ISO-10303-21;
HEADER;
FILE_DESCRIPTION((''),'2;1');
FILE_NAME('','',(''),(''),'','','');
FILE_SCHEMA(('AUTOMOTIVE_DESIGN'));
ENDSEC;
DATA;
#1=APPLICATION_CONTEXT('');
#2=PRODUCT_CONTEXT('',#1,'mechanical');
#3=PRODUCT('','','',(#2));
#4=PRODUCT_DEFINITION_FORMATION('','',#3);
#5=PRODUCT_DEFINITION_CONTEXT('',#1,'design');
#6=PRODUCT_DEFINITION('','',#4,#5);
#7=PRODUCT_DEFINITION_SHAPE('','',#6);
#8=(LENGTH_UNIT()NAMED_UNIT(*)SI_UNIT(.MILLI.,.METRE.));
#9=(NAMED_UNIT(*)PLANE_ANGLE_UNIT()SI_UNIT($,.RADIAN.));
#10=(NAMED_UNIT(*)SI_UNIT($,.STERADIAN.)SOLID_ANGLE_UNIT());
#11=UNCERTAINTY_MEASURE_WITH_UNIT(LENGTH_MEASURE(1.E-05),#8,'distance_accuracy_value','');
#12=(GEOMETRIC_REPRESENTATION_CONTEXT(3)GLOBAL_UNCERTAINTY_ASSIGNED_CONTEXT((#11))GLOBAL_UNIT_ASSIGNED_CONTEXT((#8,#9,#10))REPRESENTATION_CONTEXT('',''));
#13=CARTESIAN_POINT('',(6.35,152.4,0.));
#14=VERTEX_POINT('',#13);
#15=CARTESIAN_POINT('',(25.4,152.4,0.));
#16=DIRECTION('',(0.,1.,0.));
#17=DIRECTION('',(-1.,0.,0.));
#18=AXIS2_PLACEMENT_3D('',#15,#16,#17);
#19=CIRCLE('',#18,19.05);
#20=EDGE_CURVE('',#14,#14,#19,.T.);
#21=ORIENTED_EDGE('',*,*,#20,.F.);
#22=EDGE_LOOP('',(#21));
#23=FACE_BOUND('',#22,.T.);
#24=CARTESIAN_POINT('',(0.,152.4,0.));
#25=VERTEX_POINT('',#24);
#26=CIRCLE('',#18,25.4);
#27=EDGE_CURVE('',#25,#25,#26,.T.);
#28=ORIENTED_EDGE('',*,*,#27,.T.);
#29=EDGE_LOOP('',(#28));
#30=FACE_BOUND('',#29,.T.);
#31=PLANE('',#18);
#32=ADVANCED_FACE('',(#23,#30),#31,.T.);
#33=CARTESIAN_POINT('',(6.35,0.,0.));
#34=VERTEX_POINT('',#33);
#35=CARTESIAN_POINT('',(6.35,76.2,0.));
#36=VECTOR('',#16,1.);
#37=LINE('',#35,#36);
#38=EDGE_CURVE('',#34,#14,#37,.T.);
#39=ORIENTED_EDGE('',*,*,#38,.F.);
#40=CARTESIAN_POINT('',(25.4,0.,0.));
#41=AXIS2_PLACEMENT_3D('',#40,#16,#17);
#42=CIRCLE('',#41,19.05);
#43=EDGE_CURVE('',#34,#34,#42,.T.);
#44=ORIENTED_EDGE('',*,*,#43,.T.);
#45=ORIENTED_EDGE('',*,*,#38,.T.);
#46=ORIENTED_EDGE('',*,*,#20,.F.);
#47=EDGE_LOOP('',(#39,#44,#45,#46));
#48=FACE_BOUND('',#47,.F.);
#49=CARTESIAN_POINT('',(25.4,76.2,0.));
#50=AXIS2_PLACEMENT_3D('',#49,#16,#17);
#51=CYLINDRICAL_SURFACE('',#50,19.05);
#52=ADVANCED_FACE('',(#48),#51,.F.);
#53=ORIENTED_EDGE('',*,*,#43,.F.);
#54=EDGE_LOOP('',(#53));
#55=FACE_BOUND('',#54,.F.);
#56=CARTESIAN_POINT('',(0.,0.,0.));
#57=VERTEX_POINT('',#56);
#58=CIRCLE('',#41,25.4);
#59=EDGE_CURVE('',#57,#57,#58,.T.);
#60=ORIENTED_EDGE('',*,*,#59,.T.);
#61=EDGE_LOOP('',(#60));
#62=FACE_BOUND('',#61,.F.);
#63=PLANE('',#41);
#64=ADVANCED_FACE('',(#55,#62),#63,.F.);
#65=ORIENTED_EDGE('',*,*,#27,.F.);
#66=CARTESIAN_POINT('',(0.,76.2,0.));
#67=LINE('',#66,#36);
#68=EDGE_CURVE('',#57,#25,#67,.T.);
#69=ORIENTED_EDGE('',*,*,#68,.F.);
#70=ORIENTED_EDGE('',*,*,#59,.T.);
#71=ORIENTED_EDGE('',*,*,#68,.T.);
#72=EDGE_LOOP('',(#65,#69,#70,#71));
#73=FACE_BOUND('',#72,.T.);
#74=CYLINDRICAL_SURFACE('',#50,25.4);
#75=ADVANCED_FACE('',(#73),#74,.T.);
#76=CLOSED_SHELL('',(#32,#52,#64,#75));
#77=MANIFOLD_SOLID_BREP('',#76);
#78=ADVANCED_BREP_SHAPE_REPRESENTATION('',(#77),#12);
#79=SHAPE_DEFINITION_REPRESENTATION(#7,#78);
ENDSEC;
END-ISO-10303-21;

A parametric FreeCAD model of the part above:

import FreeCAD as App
import Part
import Sketcher
from FreeCAD import Vector
Q = App.Units.Quantity


def add_polygon(sketch, points):
    """Adds a closed chain of lines whose ends are joined by coincident constraints."""
    first, n = sketch.GeometryCount, len(points)
    for a, b in zip(points, points[1:] + points[:1]):
        sketch.addGeometry(Part.LineSegment(App.Vector(*a, 0), App.Vector(*b, 0)), False)
    for i in range(n):
        sketch.addConstraint(Sketcher.Constraint("Coincident", first + i, 2, first + (i + 1) % n, 1))

doc = App.newDocument("Part")
body = doc.addObject("PartDesign::Body", "Body")

# Sketch on XY plane
sketch1 = doc.addObject("Sketcher::SketchObject", "Sketch")
body.addObject(sketch1)
sketch1.AttachmentSupport = (doc.XY_Plane, [""])
sketch1.MapMode = "FlatFace"
add_polygon(sketch1, [(0, 152), (0, 0), (6, 0), (6, 152)])  # lines 0-3
sketch1.addGeometry(Part.LineSegment(Vector(25, 0, 0), Vector(25, 152, 0)), True)  # axis
sketch1.addConstraint([
    Sketcher.Constraint("Vertical", 0),
    Sketcher.Constraint("Horizontal", 1),
    Sketcher.Constraint("Vertical", 2),
    Sketcher.Constraint("Horizontal", 3),
    Sketcher.Constraint("Vertical", 4),
    Sketcher.Constraint("Coincident", 0, 2, -1, 1),
    Sketcher.Constraint("PointOnObject", 4, 1, -1),
    Sketcher.Constraint("Horizontal", 3, 2, 4, 2),
    Sketcher.Constraint("DistanceY", 0, 2, 0, 1, Q("6 in")),
    Sketcher.Constraint("DistanceX", -1, 1, 4, 1, Q("1 in")),
    Sketcher.Constraint("DistanceX", 1, 1, 1, 2, Q("0.25 in")),
])
revolution = doc.addObject("PartDesign::Revolution", "Revolution")
body.addObject(revolution)
revolution.Profile = sketch1
revolution.ReferenceAxis = (sketch1, ["Axis0"])
revolution.Angle = 360

doc.recompute()
